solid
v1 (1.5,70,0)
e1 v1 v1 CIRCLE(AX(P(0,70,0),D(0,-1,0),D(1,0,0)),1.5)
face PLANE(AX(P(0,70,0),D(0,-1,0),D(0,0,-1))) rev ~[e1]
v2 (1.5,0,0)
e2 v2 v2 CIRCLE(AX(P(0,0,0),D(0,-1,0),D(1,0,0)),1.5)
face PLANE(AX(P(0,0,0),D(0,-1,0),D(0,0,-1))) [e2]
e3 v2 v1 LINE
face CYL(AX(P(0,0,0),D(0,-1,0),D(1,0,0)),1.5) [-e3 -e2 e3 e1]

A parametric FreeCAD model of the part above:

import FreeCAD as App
import Part
import Sketcher
Q = App.Units.Quantity

doc = App.newDocument("Part")
params = doc.addObject("Spreadsheet::Sheet", "Params")
for row, (alias, value) in enumerate([
    ("sketch1_diameter", "3 mm"),
    ("pad1_length", "70 mm"),
], start=1):
    params.set(f"A{row}", alias)
    params.set(f"B{row}", "=" + value)
    params.setAlias(f"B{row}", alias)

body = doc.addObject("PartDesign::Body", "Body")

# Sketch on XZ plane
sketch1 = body.newObject("Sketcher::SketchObject", "Sketch")
sketch1.AttachmentSupport = (doc.getObject("XZ_Plane"), [""])
sketch1.MapMode = "FlatFace"
sketch1.addGeometry(Part.Circle(App.Vector(0, 0, 0), App.Vector(0, 0, 1), 1.5), False)
sketch1.addConstraint([
    Sketcher.Constraint("Coincident", 0, 3, -1, 1),
    Sketcher.Constraint("Diameter", 0, Q("3 mm")),
])
sketch1.setExpression("Constraints[1]", "Params.sketch1_diameter")
pad1 = body.newObject("PartDesign::Pad", "Pad")
pad1.Profile = sketch1
pad1.setExpression("Length", "Params.pad1_length")
pad1.Reversed = True

doc.recompute()
